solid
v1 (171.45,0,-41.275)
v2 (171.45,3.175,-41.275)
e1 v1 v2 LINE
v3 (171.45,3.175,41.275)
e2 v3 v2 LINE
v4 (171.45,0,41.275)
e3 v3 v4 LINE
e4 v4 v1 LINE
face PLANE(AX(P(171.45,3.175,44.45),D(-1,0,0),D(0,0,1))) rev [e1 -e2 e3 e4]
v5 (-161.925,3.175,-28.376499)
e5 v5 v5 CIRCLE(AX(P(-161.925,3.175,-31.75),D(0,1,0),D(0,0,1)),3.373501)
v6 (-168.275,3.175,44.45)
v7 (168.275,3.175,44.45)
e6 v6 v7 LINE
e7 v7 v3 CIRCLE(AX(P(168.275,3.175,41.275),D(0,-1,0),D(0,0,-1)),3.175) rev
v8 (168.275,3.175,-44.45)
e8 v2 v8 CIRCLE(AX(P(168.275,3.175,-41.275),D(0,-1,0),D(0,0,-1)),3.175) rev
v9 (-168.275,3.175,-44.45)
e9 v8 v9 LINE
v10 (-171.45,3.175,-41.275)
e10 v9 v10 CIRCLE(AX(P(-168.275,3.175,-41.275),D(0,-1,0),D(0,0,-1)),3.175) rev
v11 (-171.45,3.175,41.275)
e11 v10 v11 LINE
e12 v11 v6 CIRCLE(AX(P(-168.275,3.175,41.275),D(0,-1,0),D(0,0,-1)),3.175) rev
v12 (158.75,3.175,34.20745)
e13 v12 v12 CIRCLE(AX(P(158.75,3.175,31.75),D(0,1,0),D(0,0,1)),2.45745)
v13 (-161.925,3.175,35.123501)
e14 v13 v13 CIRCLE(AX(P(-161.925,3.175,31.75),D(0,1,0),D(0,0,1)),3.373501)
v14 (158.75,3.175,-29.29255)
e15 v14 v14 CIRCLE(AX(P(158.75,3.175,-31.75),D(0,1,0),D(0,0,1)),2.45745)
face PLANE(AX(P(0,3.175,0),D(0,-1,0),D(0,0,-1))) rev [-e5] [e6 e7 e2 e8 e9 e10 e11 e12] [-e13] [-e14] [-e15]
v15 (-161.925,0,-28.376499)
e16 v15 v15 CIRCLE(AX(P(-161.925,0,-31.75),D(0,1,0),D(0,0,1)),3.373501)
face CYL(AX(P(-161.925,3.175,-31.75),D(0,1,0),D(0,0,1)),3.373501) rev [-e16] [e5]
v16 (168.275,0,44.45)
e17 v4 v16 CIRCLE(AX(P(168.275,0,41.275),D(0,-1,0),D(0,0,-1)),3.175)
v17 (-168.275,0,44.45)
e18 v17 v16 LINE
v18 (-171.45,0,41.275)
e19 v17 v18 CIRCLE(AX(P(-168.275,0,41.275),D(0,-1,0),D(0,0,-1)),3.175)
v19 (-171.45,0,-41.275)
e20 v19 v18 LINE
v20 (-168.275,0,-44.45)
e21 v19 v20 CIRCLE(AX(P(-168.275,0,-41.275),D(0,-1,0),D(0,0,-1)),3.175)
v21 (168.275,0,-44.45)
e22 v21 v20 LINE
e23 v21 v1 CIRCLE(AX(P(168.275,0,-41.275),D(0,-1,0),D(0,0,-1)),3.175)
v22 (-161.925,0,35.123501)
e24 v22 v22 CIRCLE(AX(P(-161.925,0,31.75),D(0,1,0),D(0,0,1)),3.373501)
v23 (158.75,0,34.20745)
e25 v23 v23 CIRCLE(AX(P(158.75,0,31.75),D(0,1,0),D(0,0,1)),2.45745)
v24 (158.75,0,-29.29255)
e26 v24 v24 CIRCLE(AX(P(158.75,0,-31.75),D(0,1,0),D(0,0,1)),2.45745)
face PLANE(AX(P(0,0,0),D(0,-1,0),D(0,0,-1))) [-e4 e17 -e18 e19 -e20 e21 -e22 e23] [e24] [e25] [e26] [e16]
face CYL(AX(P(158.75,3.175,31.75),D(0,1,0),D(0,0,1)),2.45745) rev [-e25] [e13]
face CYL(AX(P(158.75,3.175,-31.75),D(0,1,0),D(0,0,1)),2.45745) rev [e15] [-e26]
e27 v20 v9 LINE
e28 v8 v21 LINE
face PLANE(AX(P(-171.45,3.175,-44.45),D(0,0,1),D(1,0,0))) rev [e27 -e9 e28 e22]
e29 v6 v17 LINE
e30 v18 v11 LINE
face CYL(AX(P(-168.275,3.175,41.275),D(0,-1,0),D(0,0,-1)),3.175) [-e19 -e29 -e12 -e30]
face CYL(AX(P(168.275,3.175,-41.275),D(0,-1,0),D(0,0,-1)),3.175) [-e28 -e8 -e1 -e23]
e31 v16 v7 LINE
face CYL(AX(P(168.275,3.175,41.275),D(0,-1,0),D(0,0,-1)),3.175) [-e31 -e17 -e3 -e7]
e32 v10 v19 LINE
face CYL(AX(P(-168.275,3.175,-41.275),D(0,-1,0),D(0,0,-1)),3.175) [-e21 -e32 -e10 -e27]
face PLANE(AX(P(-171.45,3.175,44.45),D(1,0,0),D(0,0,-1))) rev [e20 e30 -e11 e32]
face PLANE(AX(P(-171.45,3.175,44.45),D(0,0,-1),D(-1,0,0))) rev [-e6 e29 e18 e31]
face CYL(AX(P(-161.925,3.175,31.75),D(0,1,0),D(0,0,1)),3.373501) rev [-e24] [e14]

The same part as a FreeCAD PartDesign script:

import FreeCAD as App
import Part
import Sketcher
Q = App.Units.Quantity


def edges_at(feature, points):
    """Names of the edges that pass closest to the given points."""
    edges = feature.Shape.Edges
    near = lambda p: min(range(len(edges)), key=lambda i: edges[i].distToShape(Part.Vertex(*p))[0])
    return sorted({f"Edge{near(p) + 1}" for p in points})


def add_polygon(sketch, points):
    """Adds a closed chain of lines whose ends are joined by coincident constraints."""
    first, n = sketch.GeometryCount, len(points)
    for a, b in zip(points, points[1:] + points[:1]):
        sketch.addGeometry(Part.LineSegment(App.Vector(*a, 0), App.Vector(*b, 0)), False)
    for i in range(n):
        sketch.addConstraint(Sketcher.Constraint("Coincident", first + i, 2, first + (i + 1) % n, 1))

doc = App.newDocument("Part")
params = doc.addObject("Spreadsheet::Sheet", "Params")
for row, (alias, value) in enumerate([
    ("sketch1_width", "13.5 in"),
    ("sketch1_height", "3.5 in"),
    ("pad1_length", "0.125 in"),
    ("hole_diameter", "6.747002 mm"),
    ("hole2_diameter", "0.1935 in"),
    ("fillet_radius", "0.125 in"),
], start=1):
    params.set(f"A{row}", alias)
    params.set(f"B{row}", "=" + value)
    params.setAlias(f"B{row}", alias)

body = doc.addObject("PartDesign::Body", "Body")

# Sketch on XZ plane
sketch1 = body.newObject("Sketcher::SketchObject", "Sketch")
sketch1.AttachmentSupport = (doc.getObject("XZ_Plane"), [""])
sketch1.MapMode = "FlatFace"
add_polygon(sketch1, [(-171.45, -44.45), (-171.45, 44.45), (171.45, 44.45), (171.45, -44.45)])  # lines 0-3
sketch1.addConstraint(Sketcher.Constraint("Vertical", 0))
sketch1.addConstraint(Sketcher.Constraint("Horizontal", 1))
sketch1.addConstraint(Sketcher.Constraint("Vertical", 2))
sketch1.addConstraint(Sketcher.Constraint("Horizontal", 3))
sketch1.addConstraint(Sketcher.Constraint("Symmetric", 0, 2, 2, 2, -1, 1))
sketch1.addConstraint(Sketcher.Constraint("DistanceX", 1, 1, 1, 2, Q("13.5 in")))
sketch1.addConstraint(Sketcher.Constraint("DistanceY", 0, 1, 0, 2, Q("3.5 in")))
sketch1.setExpression("Constraints[9]", "Params.sketch1_width")
sketch1.setExpression("Constraints[10]", "Params.sketch1_height")
pad1 = body.newObject("PartDesign::Pad", "Pad")
pad1.Profile = sketch1
pad1.setExpression("Length", "Params.pad1_length")
pad1.Reversed = True

# Sketch on XZ plane
sketch2 = body.newObject("Sketcher::SketchObject", "Sketch001")
sketch2.AttachmentSupport = (doc.getObject("XZ_Plane"), [""])
sketch2.MapMode = "FlatFace"
sketch2.AttachmentOffset = App.Placement(App.Vector(0, 0, -0.125 * 25.4), App.Rotation())
sketch2.addGeometry(Part.Circle(App.Vector(-161.925, -31.75, 0), App.Vector(0, 0, 1), 3.373501), False)
sketch2.addGeometry(Part.Circle(App.Vector(-161.925, 31.75, 0), App.Vector(0, 0, 1), 3.373501), False)
sketch2.addConstraint(Sketcher.Constraint("Equal", 0, 1))
sketch2.addConstraint(Sketcher.Constraint("Symmetric", 0, 3, 1, 3, -1))
sketch2.addConstraint(Sketcher.Constraint("DistanceY", 0, 3, 1, 3, Q("2.5 in")))
sketch2.addConstraint(Sketcher.Constraint("DistanceX", 0, 3, -1, 1, Q("6.375 in")))
sketch2.addConstraint(Sketcher.Constraint("Diameter", 0, 6.747002))
doc.recompute()
hole = body.newObject("PartDesign::Hole", "Hole")
hole.Profile = sketch2
hole.ThreadType = "None"
hole.setExpression("Diameter", "Params.hole_diameter")
hole.DepthType = "ThroughAll"
hole.Reversed = True

# Sketch on XZ plane
sketch3 = body.newObject("Sketcher::SketchObject", "Sketch002")
sketch3.AttachmentSupport = (doc.getObject("XZ_Plane"), [""])
sketch3.MapMode = "FlatFace"
sketch3.AttachmentOffset = App.Placement(App.Vector(0, 0, -0.125 * 25.4), App.Rotation())
sketch3.addGeometry(Part.Circle(App.Vector(158.75, -31.75, 0), App.Vector(0, 0, 1), 2.45745), False)
sketch3.addGeometry(Part.Circle(App.Vector(158.75, 31.75, 0), App.Vector(0, 0, 1), 2.45745), False)
sketch3.addConstraint(Sketcher.Constraint("Equal", 0, 1))
sketch3.addConstraint(Sketcher.Constraint("Symmetric", 0, 3, 1, 3, -1))
sketch3.addConstraint(Sketcher.Constraint("Diameter", 0, Q("0.1935 in")))
sketch3.addConstraint(Sketcher.Constraint("DistanceY", 0, 3, 1, 3, Q("2.5 in")))
sketch3.addConstraint(Sketcher.Constraint("DistanceX", -1, 1, 0, 3, Q("6.25 in")))
doc.recompute()
hole2 = body.newObject("PartDesign::Hole", "Hole001")
hole2.Profile = sketch3
hole2.ThreadType = "None"
hole2.setExpression("Diameter", "Params.hole2_diameter")
hole2.DepthType = "ThroughAll"
hole2.Reversed = True
doc.recompute()

fillet = body.newObject("PartDesign::Fillet", "Fillet")
fillet.Base = (hole2, edges_at(hole2, [
    (171.45, 1.587, 44.45),
    (-171.45, 1.587, 44.45),
    (-171.45, 1.587, -44.45),
    (171.45, 1.587, -44.45),
]))
fillet.setExpression("Radius", "Params.fillet_radius")

doc.recompute()
